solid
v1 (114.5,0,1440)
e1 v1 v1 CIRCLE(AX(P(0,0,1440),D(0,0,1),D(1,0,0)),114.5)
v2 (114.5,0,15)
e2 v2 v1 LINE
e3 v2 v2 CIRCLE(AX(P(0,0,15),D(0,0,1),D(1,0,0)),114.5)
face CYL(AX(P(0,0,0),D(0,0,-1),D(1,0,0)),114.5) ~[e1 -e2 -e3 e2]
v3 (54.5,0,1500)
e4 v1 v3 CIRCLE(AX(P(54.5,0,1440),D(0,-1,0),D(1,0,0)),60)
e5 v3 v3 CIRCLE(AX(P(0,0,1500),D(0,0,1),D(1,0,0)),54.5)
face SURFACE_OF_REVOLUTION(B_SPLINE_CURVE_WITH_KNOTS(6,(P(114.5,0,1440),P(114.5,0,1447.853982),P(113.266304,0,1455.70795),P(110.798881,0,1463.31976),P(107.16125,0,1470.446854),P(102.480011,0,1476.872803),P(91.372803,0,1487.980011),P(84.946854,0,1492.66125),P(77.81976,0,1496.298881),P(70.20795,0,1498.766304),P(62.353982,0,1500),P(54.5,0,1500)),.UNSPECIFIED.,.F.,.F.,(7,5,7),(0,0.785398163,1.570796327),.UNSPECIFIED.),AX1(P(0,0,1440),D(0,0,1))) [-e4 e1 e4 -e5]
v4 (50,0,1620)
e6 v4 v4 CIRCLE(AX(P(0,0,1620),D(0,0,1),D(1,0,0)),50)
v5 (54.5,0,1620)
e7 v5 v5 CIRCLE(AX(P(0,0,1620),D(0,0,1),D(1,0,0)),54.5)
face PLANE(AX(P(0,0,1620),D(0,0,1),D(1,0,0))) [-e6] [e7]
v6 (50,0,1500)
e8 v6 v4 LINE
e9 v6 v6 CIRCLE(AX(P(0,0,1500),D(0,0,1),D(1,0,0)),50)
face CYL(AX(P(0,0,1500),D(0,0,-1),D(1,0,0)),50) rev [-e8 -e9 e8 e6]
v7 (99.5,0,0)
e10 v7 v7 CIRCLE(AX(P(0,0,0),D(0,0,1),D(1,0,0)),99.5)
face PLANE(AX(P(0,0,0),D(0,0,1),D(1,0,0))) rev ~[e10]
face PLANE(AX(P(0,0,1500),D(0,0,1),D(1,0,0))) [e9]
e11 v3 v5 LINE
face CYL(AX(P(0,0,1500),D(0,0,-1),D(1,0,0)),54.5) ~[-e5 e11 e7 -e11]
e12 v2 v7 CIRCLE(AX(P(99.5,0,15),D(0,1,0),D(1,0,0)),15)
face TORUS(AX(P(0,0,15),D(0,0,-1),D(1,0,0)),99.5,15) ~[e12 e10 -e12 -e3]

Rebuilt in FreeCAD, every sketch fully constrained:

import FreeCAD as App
import Part
import Sketcher

V = App.Vector


def edges_at(feature, points):
    """Names of the edges that pass closest to the given points."""
    edges = feature.Shape.Edges
    near = lambda p: min(range(len(edges)), key=lambda i: edges[i].distToShape(Part.Vertex(*p))[0])
    return sorted({f"Edge{near(p) + 1}" for p in points})

doc = App.newDocument("Part")
body = doc.addObject("PartDesign::Body", "Body")

sketch1 = body.newObject("Sketcher::SketchObject", "Sketch")
sketch1.AttachmentSupport = (doc.getObject("XY_Plane"), [""])
sketch1.MapMode = "FlatFace"
sketch1.addGeometry(Part.Circle(V(0, 0, 0), V(0, 0, 1), 114), False)
sketch1.addConstraint(Sketcher.Constraint("Coincident", 0, 3, -1, 1))
sketch1.addConstraint(Sketcher.Constraint("Diameter", 0, 229.0))
pad1 = body.newObject("PartDesign::Pad", "Pad")
pad1.Profile = sketch1
pad1.Length = 1500
doc.recompute()

fillet = body.newObject("PartDesign::Fillet", "Fillet")
fillet.Base = (pad1, edges_at(pad1, [(-114.5, 0, 1500)]))
fillet.Radius = 60
doc.recompute()

fillet2 = body.newObject("PartDesign::Fillet", "Fillet001")
fillet2.Base = (fillet, edges_at(fillet, [(-114.5, 0, 0)]))
fillet2.Radius = 15

sketch2 = body.newObject("Sketcher::SketchObject", "Sketch001")
sketch2.AttachmentSupport = (doc.getObject("XY_Plane"), [""])
sketch2.MapMode = "FlatFace"
sketch2.AttachmentOffset = App.Placement(V(0, 0, 1500), App.Rotation())
sketch2.addGeometry(Part.Circle(V(0, 0, 0), V(0, 0, 1), 54), False)
sketch2.addGeometry(Part.Circle(V(0, 0, 0), V(0, 0, 1), 50), False)
sketch2.addConstraint(Sketcher.Constraint("Coincident", 0, 3, -1, 1))
sketch2.addConstraint(Sketcher.Constraint("Coincident", 1, 3, -1, 1))
sketch2.addConstraint(Sketcher.Constraint("Diameter", 0, 109.0))
sketch2.addConstraint(Sketcher.Constraint("Diameter", 1, 100.0))
pad2 = body.newObject("PartDesign::Pad", "Pad001")
pad2.Profile = sketch2
pad2.Length = 120

doc.recompute()
